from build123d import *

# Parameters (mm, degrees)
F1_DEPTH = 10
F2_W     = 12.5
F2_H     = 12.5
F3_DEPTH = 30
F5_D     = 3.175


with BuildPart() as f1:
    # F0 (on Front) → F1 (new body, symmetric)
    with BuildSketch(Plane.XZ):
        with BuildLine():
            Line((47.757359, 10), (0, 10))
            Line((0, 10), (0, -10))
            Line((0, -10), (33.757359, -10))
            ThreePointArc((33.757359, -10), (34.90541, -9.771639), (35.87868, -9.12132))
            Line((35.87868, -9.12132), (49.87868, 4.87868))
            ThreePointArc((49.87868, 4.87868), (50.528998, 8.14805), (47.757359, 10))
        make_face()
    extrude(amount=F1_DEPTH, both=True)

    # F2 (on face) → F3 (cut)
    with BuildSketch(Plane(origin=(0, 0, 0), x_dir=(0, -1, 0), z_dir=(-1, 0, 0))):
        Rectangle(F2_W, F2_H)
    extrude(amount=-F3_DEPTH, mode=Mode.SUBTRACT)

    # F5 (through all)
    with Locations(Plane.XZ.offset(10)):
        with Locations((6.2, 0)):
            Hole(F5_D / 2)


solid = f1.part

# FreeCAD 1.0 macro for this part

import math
import FreeCAD as App
import Part
import Sketcher

V = App.Vector
Q = App.Units.Quantity

doc = App.newDocument("Part")
body = doc.addObject("PartDesign::Body", "Body")

# Sketch on XZ plane
sketch1 = doc.addObject("Sketcher::SketchObject", "Sketch")
body.addObject(sketch1)
sketch1.AttachmentSupport = (doc.XZ_Plane, [""])
sketch1.MapMode = "FlatFace"
sketch1.addGeometry([
    Part.LineSegment(V(47.8, 10, 0), V(0, 10, 0)),  # 0
    Part.LineSegment(V(0, 10, 0), V(0, -10, 0)),  # 1
    Part.LineSegment(V(0, -10, 0), V(33.8, -10, 0)),  # 2
    Part.ArcOfCircle(Part.Circle(V(33.8, -7, 0), V(0, 0, 1), 3), math.radians(-90), math.radians(-45)),  # 3
    Part.LineSegment(V(35.9, -9.1, 0), V(49.9, 4.9, 0)),  # 4
    Part.ArcOfCircle(Part.Circle(V(47.8, 7, 0), V(0, 0, 1), 3), math.radians(-45), math.radians(90)),  # 5
], False)
sketch1.addConstraint([
    Sketcher.Constraint("Coincident", 0, 2, 1, 1),
    Sketcher.Constraint("Coincident", 1, 2, 2, 1),
    Sketcher.Constraint("Tangent", 2, 2, 3, 1),
    Sketcher.Constraint("Tangent", 3, 2, 4, 1),
    Sketcher.Constraint("Tangent", 4, 2, 5, 1),
    Sketcher.Constraint("Tangent", 5, 2, 0, 1),
    Sketcher.Constraint("Horizontal", 0),
    Sketcher.Constraint("Vertical", 1),
    Sketcher.Constraint("Horizontal", 2),
    Sketcher.Constraint("Symmetric", 0, 2, 1, 2, -1, 1),
    Sketcher.Constraint("Radius", 5, Q("3 mm")),
    Sketcher.Constraint("DistanceY", 1, 2, 1, 1, Q("20 mm")),
    Sketcher.Constraint("Angle", 4, Q("45 deg")),
    Sketcher.Constraint("DistanceX", 2, 2, 5, 3, Q("14 mm")),
    Sketcher.Constraint("DistanceX", 0, 2, 0, 1, Q("47.757359 mm")),
])
pad1 = doc.addObject("PartDesign::Pad", "Pad")
body.addObject(pad1)
pad1.Profile = sketch1
pad1.Length = 20
pad1.Midplane = True

# Sketch on YZ plane
sketch2 = doc.addObject("Sketcher::SketchObject", "Sketch001")
body.addObject(sketch2)
sketch2.AttachmentSupport = (doc.YZ_Plane, [""])
sketch2.MapMode = "FlatFace"
sketch2.addGeometry([
    Part.LineSegment(V(6, 6, 0), V(6, -6, 0)),
    Part.LineSegment(V(6, -6, 0), V(-6, -6, 0)),
    Part.LineSegment(V(-6, -6, 0), V(-6, 6, 0)),
    Part.LineSegment(V(-6, 6, 0), V(6, 6, 0)),
], False)
sketch2.addConstraint([
    Sketcher.Constraint("Coincident", 0, 2, 1, 1),
    Sketcher.Constraint("Coincident", 1, 2, 2, 1),
    Sketcher.Constraint("Coincident", 2, 2, 3, 1),
    Sketcher.Constraint("Coincident", 3, 2, 0, 1),
    Sketcher.Constraint("Vertical", 0),
    Sketcher.Constraint("Horizontal", 1),
    Sketcher.Constraint("Vertical", 2),
    Sketcher.Constraint("Horizontal", 3),
    Sketcher.Constraint("Symmetric", 0, 2, 2, 2, -1, 1),
    Sketcher.Constraint("Equal", 3, 0),
    Sketcher.Constraint("DistanceX", 1, 2, 1, 1, Q("12.5 mm")),
])
pocket1 = doc.addObject("PartDesign::Pocket", "Pocket")
body.addObject(pocket1)
pocket1.Profile = sketch2
pocket1.Length = 30
pocket1.Reversed = True

# Sketch on XZ plane
sketch3 = doc.addObject("Sketcher::SketchObject", "Sketch002")
body.addObject(sketch3)
sketch3.AttachmentSupport = (doc.XZ_Plane, [""])
sketch3.MapMode = "FlatFace"
sketch3.AttachmentOffset = App.Placement(V(0, 0, 10), App.Rotation())
sketch3.addGeometry(Part.Circle(V(6.2, 0, 0), V(0, 0, 1), 1.6), False)
sketch3.addConstraint([
    Sketcher.Constraint("PointOnObject", 0, 3, -1),
    Sketcher.Constraint("Diameter", 0, Q("3.175 mm")),
    Sketcher.Constraint("DistanceX", -1, 1, 0, 3, Q("6.2 mm")),
])
doc.recompute()
hole = doc.addObject("PartDesign::Hole", "Hole")
body.addObject(hole)
hole.Profile = sketch3
hole.ThreadType = "None"
hole.Diameter = 3.175
hole.DepthType = "ThroughAll"

doc.recompute()
